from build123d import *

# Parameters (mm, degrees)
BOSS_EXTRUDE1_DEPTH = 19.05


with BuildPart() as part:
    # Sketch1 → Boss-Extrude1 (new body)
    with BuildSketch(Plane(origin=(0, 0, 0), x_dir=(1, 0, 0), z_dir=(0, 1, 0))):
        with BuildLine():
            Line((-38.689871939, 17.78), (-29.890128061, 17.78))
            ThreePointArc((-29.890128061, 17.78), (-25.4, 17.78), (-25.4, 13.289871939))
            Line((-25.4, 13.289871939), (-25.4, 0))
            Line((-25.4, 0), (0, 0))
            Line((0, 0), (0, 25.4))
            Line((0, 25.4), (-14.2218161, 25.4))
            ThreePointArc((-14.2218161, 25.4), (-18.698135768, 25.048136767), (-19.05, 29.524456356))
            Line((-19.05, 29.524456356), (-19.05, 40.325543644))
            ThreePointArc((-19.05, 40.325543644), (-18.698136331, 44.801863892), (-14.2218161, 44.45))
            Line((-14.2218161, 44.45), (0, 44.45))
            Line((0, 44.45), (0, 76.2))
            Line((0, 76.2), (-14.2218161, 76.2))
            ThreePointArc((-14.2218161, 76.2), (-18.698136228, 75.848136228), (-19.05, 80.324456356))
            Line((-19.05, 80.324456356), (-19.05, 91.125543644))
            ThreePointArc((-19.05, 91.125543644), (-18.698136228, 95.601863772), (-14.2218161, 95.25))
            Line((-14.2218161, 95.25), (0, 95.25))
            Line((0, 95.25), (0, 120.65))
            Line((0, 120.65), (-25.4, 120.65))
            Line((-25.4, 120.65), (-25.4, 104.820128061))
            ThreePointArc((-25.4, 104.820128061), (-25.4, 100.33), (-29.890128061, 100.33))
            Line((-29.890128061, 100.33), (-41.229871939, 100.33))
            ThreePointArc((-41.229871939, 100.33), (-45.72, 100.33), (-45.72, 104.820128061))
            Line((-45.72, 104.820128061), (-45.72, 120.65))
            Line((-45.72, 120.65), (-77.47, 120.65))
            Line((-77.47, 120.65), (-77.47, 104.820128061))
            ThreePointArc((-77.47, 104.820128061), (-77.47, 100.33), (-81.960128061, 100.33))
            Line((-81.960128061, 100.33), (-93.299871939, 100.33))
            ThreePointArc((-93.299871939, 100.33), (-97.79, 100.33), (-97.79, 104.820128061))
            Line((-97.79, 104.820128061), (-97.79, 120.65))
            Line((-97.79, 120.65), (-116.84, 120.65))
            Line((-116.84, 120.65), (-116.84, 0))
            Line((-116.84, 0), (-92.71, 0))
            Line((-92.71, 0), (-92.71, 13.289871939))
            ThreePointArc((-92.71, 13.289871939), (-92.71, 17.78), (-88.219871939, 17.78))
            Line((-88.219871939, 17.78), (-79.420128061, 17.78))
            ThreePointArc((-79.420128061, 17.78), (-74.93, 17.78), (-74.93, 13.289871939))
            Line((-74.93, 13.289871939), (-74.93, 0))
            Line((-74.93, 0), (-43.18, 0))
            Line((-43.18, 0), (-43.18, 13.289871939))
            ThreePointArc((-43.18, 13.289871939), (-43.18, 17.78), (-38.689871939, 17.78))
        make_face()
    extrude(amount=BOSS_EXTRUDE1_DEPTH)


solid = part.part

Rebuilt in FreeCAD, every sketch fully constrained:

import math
import FreeCAD as App
import Part
import Sketcher
Q = App.Units.Quantity

doc = App.newDocument("Part")
body = doc.addObject("PartDesign::Body", "Body")

sketch1 = doc.addObject("Sketcher::SketchObject", "Sketch")
body.addObject(sketch1)
sketch1.AttachmentSupport = (doc.XZ_Plane, [""])
sketch1.MapMode = "FlatFace"
sketch1.addGeometry(Part.LineSegment(App.Vector(-38.689872, -17.78, 0), App.Vector(-29.890128, -17.78, 0)), False)
sketch1.addGeometry(Part.ArcOfCircle(Part.Circle(App.Vector(-27.645064, -15.534936, 0), App.Vector(0, 0, 1), 3.175), math.radians(-135), math.radians(45)), False)
sketch1.addGeometry(Part.LineSegment(App.Vector(-25.4, -13.289872, 0), App.Vector(-25.4, 0, 0)), False)
sketch1.addGeometry(Part.LineSegment(App.Vector(-25.4, 0, 0), App.Vector(0, 0, 0)), False)
sketch1.addGeometry(Part.LineSegment(App.Vector(0, 0, 0), App.Vector(0, -25.4, 0)), False)
sketch1.addGeometry(Part.LineSegment(App.Vector(0, -25.4, 0), App.Vector(-14.221816, -25.4, 0)), False)
sketch1.addGeometry(Part.ArcOfCircle(Part.Circle(App.Vector(-16.635908, -27.462229, 0), App.Vector(0, 0, 1), 3.175), math.radians(40.505486), math.radians(220.505461)), False)
sketch1.addGeometry(Part.LineSegment(App.Vector(-19.05, -29.524456, 0), App.Vector(-19.05, -40.325544, 0)), False)
sketch1.addGeometry(Part.ArcOfCircle(Part.Circle(App.Vector(-16.635908, -42.387772, 0), App.Vector(0, 0, 1), 3.175), math.radians(139.494524), math.radians(319.494529)), False)
sketch1.addGeometry(Part.LineSegment(App.Vector(-14.221816, -44.45, 0), App.Vector(0, -44.45, 0)), False)
sketch1.addGeometry(Part.LineSegment(App.Vector(0, -44.45, 0), App.Vector(0, -76.2, 0)), False)
sketch1.addGeometry(Part.LineSegment(App.Vector(0, -76.2, 0), App.Vector(-14.221816, -76.2, 0)), False)
sketch1.addGeometry(Part.ArcOfCircle(Part.Circle(App.Vector(-16.635908, -78.262228, 0), App.Vector(0, 0, 1), 3.175), math.radians(40.505473), math.radians(220.505473)), False)
sketch1.addGeometry(Part.LineSegment(App.Vector(-19.05, -80.324456, 0), App.Vector(-19.05, -91.125544, 0)), False)
sketch1.addGeometry(Part.ArcOfCircle(Part.Circle(App.Vector(-16.635908, -93.187772, 0), App.Vector(0, 0, 1), 3.175), math.radians(139.494527), math.radians(319.494527)), False)
sketch1.addGeometry(Part.LineSegment(App.Vector(-14.221816, -95.25, 0), App.Vector(0, -95.25, 0)), False)
sketch1.addGeometry(Part.LineSegment(App.Vector(0, -95.25, 0), App.Vector(0, -120.65, 0)), False)
sketch1.addGeometry(Part.LineSegment(App.Vector(0, -120.65, 0), App.Vector(-25.4, -120.65, 0)), False)
sketch1.addGeometry(Part.LineSegment(App.Vector(-25.4, -120.65, 0), App.Vector(-25.4, -104.820128, 0)), False)
sketch1.addGeometry(Part.ArcOfCircle(Part.Circle(App.Vector(-27.645064, -102.575064, 0), App.Vector(0, 0, 1), 3.175), math.radians(-45), math.radians(135)), False)
sketch1.addGeometry(Part.LineSegment(App.Vector(-29.890128, -100.33, 0), App.Vector(-41.229872, -100.33, 0)), False)
sketch1.addGeometry(Part.ArcOfCircle(Part.Circle(App.Vector(-43.474936, -102.575064, 0), App.Vector(0, 0, 1), 3.175), math.radians(45), math.radians(225)), False)
sketch1.addGeometry(Part.LineSegment(App.Vector(-45.72, -104.820128, 0), App.Vector(-45.72, -120.65, 0)), False)
sketch1.addGeometry(Part.LineSegment(App.Vector(-45.72, -120.65, 0), App.Vector(-77.47, -120.65, 0)), False)
sketch1.addGeometry(Part.LineSegment(App.Vector(-77.47, -120.65, 0), App.Vector(-77.47, -104.820128, 0)), False)
sketch1.addGeometry(Part.ArcOfCircle(Part.Circle(App.Vector(-79.715064, -102.575064, 0), App.Vector(0, 0, 1), 3.175), math.radians(-45), math.radians(135)), False)
sketch1.addGeometry(Part.LineSegment(App.Vector(-81.960128, -100.33, 0), App.Vector(-93.299872, -100.33, 0)), False)
sketch1.addGeometry(Part.ArcOfCircle(Part.Circle(App.Vector(-95.544936, -102.575064, 0), App.Vector(0, 0, 1), 3.175), math.radians(45), math.radians(225)), False)
sketch1.addGeometry(Part.LineSegment(App.Vector(-97.79, -104.820128, 0), App.Vector(-97.79, -120.65, 0)), False)
sketch1.addGeometry(Part.LineSegment(App.Vector(-97.79, -120.65, 0), App.Vector(-116.84, -120.65, 0)), False)
sketch1.addGeometry(Part.LineSegment(App.Vector(-116.84, -120.65, 0), App.Vector(-116.84, 0, 0)), False)
sketch1.addGeometry(Part.LineSegment(App.Vector(-116.84, 0, 0), App.Vector(-92.71, 0, 0)), False)
sketch1.addGeometry(Part.LineSegment(App.Vector(-92.71, 0, 0), App.Vector(-92.71, -13.289872, 0)), False)
sketch1.addGeometry(Part.ArcOfCircle(Part.Circle(App.Vector(-90.464936, -15.534936, 0), App.Vector(0, 0, 1), 3.175), math.radians(135), math.radians(315)), False)
sketch1.addGeometry(Part.LineSegment(App.Vector(-88.219872, -17.78, 0), App.Vector(-79.420128, -17.78, 0)), False)
sketch1.addGeometry(Part.ArcOfCircle(Part.Circle(App.Vector(-77.175064, -15.534936, 0), App.Vector(0, 0, 1), 3.175), math.radians(-135), math.radians(45)), False)
sketch1.addGeometry(Part.LineSegment(App.Vector(-74.93, -13.289872, 0), App.Vector(-74.93, 0, 0)), False)
sketch1.addGeometry(Part.LineSegment(App.Vector(-74.93, 0, 0), App.Vector(-43.18, 0, 0)), False)
sketch1.addGeometry(Part.LineSegment(App.Vector(-43.18, 0, 0), App.Vector(-43.18, -13.289872, 0)), False)
sketch1.addGeometry(Part.ArcOfCircle(Part.Circle(App.Vector(-40.934936, -15.534936, 0), App.Vector(0, 0, 1), 3.175), math.radians(135), math.radians(315)), False)
sketch1.addConstraint(Sketcher.Constraint("Coincident", 0, 2, 1, 1))
sketch1.addConstraint(Sketcher.Constraint("Coincident", 1, 2, 2, 1))
sketch1.addConstraint(Sketcher.Constraint("Coincident", 2, 2, 3, 1))
sketch1.addConstraint(Sketcher.Constraint("Coincident", 3, 2, 4, 1))
sketch1.addConstraint(Sketcher.Constraint("Coincident", 4, 2, 5, 1))
sketch1.addConstraint(Sketcher.Constraint("Coincident", 5, 2, 6, 1))
sketch1.addConstraint(Sketcher.Constraint("Coincident", 6, 2, 7, 1))
sketch1.addConstraint(Sketcher.Constraint("Coincident", 7, 2, 8, 1))
sketch1.addConstraint(Sketcher.Constraint("Coincident", 8, 2, 9, 1))
sketch1.addConstraint(Sketcher.Constraint("Coincident", 9, 2, 10, 1))
sketch1.addConstraint(Sketcher.Constraint("Coincident", 10, 2, 11, 1))
sketch1.addConstraint(Sketcher.Constraint("Coincident", 11, 2, 12, 1))
sketch1.addConstraint(Sketcher.Constraint("Coincident", 12, 2, 13, 1))
sketch1.addConstraint(Sketcher.Constraint("Coincident", 13, 2, 14, 1))
sketch1.addConstraint(Sketcher.Constraint("Coincident", 14, 2, 15, 1))
sketch1.addConstraint(Sketcher.Constraint("Coincident", 15, 2, 16, 1))
sketch1.addConstraint(Sketcher.Constraint("Coincident", 16, 2, 17, 1))
sketch1.addConstraint(Sketcher.Constraint("Coincident", 17, 2, 18, 1))
sketch1.addConstraint(Sketcher.Constraint("Coincident", 18, 2, 19, 1))
sketch1.addConstraint(Sketcher.Constraint("Coincident", 19, 2, 20, 1))
sketch1.addConstraint(Sketcher.Constraint("Coincident", 20, 2, 21, 1))
sketch1.addConstraint(Sketcher.Constraint("Coincident", 21, 2, 22, 1))
sketch1.addConstraint(Sketcher.Constraint("Coincident", 22, 2, 23, 1))
sketch1.addConstraint(Sketcher.Constraint("Coincident", 23, 2, 24, 1))
sketch1.addConstraint(Sketcher.Constraint("Coincident", 24, 2, 25, 1))
sketch1.addConstraint(Sketcher.Constraint("Coincident", 25, 2, 26, 1))
sketch1.addConstraint(Sketcher.Constraint("Coincident", 26, 2, 27, 1))
sketch1.addConstraint(Sketcher.Constraint("Coincident", 27, 2, 28, 1))
sketch1.addConstraint(Sketcher.Constraint("Coincident", 28, 2, 29, 1))
sketch1.addConstraint(Sketcher.Constraint("Coincident", 29, 2, 30, 1))
sketch1.addConstraint(Sketcher.Constraint("Coincident", 30, 2, 31, 1))
sketch1.addConstraint(Sketcher.Constraint("Coincident", 31, 2, 32, 1))
sketch1.addConstraint(Sketcher.Constraint("Coincident", 32, 2, 33, 1))
sketch1.addConstraint(Sketcher.Constraint("Coincident", 33, 2, 34, 1))
sketch1.addConstraint(Sketcher.Constraint("Coincident", 34, 2, 35, 1))
sketch1.addConstraint(Sketcher.Constraint("Coincident", 35, 2, 36, 1))
sketch1.addConstraint(Sketcher.Constraint("Coincident", 36, 2, 37, 1))
sketch1.addConstraint(Sketcher.Constraint("Coincident", 37, 2, 38, 1))
sketch1.addConstraint(Sketcher.Constraint("Coincident", 38, 2, 39, 1))
sketch1.addConstraint(Sketcher.Constraint("Coincident", 39, 2, 0, 1))
sketch1.addConstraint(Sketcher.Constraint("Horizontal", 0))
sketch1.addConstraint(Sketcher.Constraint("Vertical", 2))
sketch1.addConstraint(Sketcher.Constraint("Horizontal", 3))
sketch1.addConstraint(Sketcher.Constraint("Vertical", 4))
sketch1.addConstraint(Sketcher.Constraint("Horizontal", 5))
sketch1.addConstraint(Sketcher.Constraint("Vertical", 7))
sketch1.addConstraint(Sketcher.Constraint("Horizontal", 9))
sketch1.addConstraint(Sketcher.Constraint("Vertical", 10))
sketch1.addConstraint(Sketcher.Constraint("Horizontal", 11))
sketch1.addConstraint(Sketcher.Constraint("Vertical", 13))
sketch1.addConstraint(Sketcher.Constraint("Horizontal", 15))
sketch1.addConstraint(Sketcher.Constraint("Vertical", 16))
sketch1.addConstraint(Sketcher.Constraint("Horizontal", 17))
sketch1.addConstraint(Sketcher.Constraint("Vertical", 18))
sketch1.addConstraint(Sketcher.Constraint("Horizontal", 20))
sketch1.addConstraint(Sketcher.Constraint("Vertical", 22))
sketch1.addConstraint(Sketcher.Constraint("Horizontal", 23))
sketch1.addConstraint(Sketcher.Constraint("Vertical", 24))
sketch1.addConstraint(Sketcher.Constraint("Horizontal", 26))
sketch1.addConstraint(Sketcher.Constraint("Vertical", 28))
sketch1.addConstraint(Sketcher.Constraint("Horizontal", 29))
sketch1.addConstraint(Sketcher.Constraint("Vertical", 30))
sketch1.addConstraint(Sketcher.Constraint("Horizontal", 31))
sketch1.addConstraint(Sketcher.Constraint("Vertical", 32))
sketch1.addConstraint(Sketcher.Constraint("Horizontal", 34))
sketch1.addConstraint(Sketcher.Constraint("Vertical", 36))
sketch1.addConstraint(Sketcher.Constraint("Horizontal", 37))
sketch1.addConstraint(Sketcher.Constraint("Vertical", 38))
sketch1.addConstraint(Sketcher.Constraint("Coincident", 3, 2, -1, 1))
sketch1.addConstraint(Sketcher.Constraint("Equal", 1, 6))
sketch1.addConstraint(Sketcher.Constraint("Equal", 6, 8))
sketch1.addConstraint(Sketcher.Constraint("Equal", 8, 12))
sketch1.addConstraint(Sketcher.Constraint("Equal", 12, 14))
sketch1.addConstraint(Sketcher.Constraint("Equal", 14, 19))
sketch1.addConstraint(Sketcher.Constraint("Equal", 19, 21))
sketch1.addConstraint(Sketcher.Constraint("Equal", 21, 25))
sketch1.addConstraint(Sketcher.Constraint("Equal", 25, 27))
sketch1.addConstraint(Sketcher.Constraint("Equal", 27, 33))
sketch1.addConstraint(Sketcher.Constraint("Equal", 33, 35))
sketch1.addConstraint(Sketcher.Constraint("Equal", 35, 39))
sketch1.addConstraint(Sketcher.Constraint("PointOnObject", 9, 2, -2))
sketch1.addConstraint(Sketcher.Constraint("PointOnObject", 15, 2, -2))
sketch1.addConstraint(Sketcher.Constraint("PointOnObject", 30, 2, -1))
sketch1.addConstraint(Sketcher.Constraint("PointOnObject", 36, 2, -1))
sketch1.addConstraint(Sketcher.Constraint("Horizontal", 19, 3, 21, 3))
sketch1.addConstraint(Sketcher.Constraint("Horizontal", 21, 3, 25, 3))
sketch1.addConstraint(Sketcher.Constraint("Horizontal", 25, 3, 27, 3))
sketch1.addConstraint(Sketcher.Constraint("Horizontal", 1, 3, 33, 3))
sketch1.addConstraint(Sketcher.Constraint("Horizontal", 33, 3, 35, 3))
sketch1.addConstraint(Sketcher.Constraint("Horizontal", 35, 3, 39, 3))
sketch1.addConstraint(Sketcher.Constraint("Horizontal", 18, 2, 21, 2))
sketch1.addConstraint(Sketcher.Constraint("Horizontal", 17, 2, 22, 2))
sketch1.addConstraint(Sketcher.Constraint("Horizontal", 21, 2, 24, 2))
sketch1.addConstraint(Sketcher.Constraint("Horizontal", 20, 2, 25, 2))
sketch1.addConstraint(Sketcher.Constraint("Horizontal", 24, 2, 27, 2))
sketch1.addConstraint(Sketcher.Constraint("Horizontal", 23, 2, 28, 2))
sketch1.addConstraint(Sketcher.Constraint("Horizontal", 1, 2, 32, 2))
sketch1.addConstraint(Sketcher.Constraint("Horizontal", 0, 2, 33, 2))
sketch1.addConstraint(Sketcher.Constraint("Horizontal", 32, 2, 35, 2))
sketch1.addConstraint(Sketcher.Constraint("Horizontal", 35, 2, 38, 2))
sketch1.addConstraint(Sketcher.Constraint("Vertical", 6, 3, 8, 3))
sketch1.addConstraint(Sketcher.Constraint("Vertical", 8, 3, 12, 3))
sketch1.addConstraint(Sketcher.Constraint("Vertical", 12, 3, 14, 3))
sketch1.addConstraint(Sketcher.Constraint("Vertical", 1, 3, 19, 3))
sketch1.addConstraint(Sketcher.Constraint("Vertical", 5, 2, 8, 2))
sketch1.addConstraint(Sketcher.Constraint("Vertical", 8, 2, 11, 2))
sketch1.addConstraint(Sketcher.Constraint("Vertical", 7, 2, 12, 2))
sketch1.addConstraint(Sketcher.Constraint("Vertical", 11, 2, 14, 2))
sketch1.addConstraint(Sketcher.Constraint("Vertical", 2, 2, 17, 2))
sketch1.addConstraint(Sketcher.Constraint("Vertical", 0, 2, 19, 2))
sketch1.addConstraint(Sketcher.Constraint("Equal", 20, 26))
sketch1.addConstraint(Sketcher.Constraint("Equal", 0, 34))
sketch1.addConstraint(Sketcher.Constraint("Equal", 23, 37))
sketch1.addConstraint(Sketcher.Constraint("Equal", 17, 4))
sketch1.addConstraint(Sketcher.Constraint("Equal", 37, 10))
sketch1.addConstraint(Sketcher.Constraint("Equal", 7, 13))
sketch1.addConstraint(Sketcher.Constraint("Equal", 4, 16))
sketch1.addConstraint(Sketcher.Constraint("DistanceX", 3, 1, 3, 2, Q("1 in")))
sketch1.addConstraint(Sketcher.Constraint("DistanceY", 10, 2, -1, 1, Q("3 in")))
sketch1.addConstraint(Sketcher.Constraint("Radius", 1, Q("0.125 in")))
sketch1.addConstraint(Sketcher.Constraint("DistanceX", 23, 2, 23, 1, Q("1.25 in")))
sketch1.addConstraint(Sketcher.Constraint("DistanceX", 29, 2, 29, 1, Q("0.75 in")))
sketch1.addConstraint(Sketcher.Constraint("DistanceX", 31, 1, 31, 2, Q("0.95 in")))
sketch1.addConstraint(Sketcher.Constraint("DistanceY", 0, 2, -1, 1, Q("0.7 in")))
sketch1.addConstraint(Sketcher.Constraint("DistanceX", 21, 2, -1, 1, Q("1.8 in")))
sketch1.addConstraint(Sketcher.Constraint("DistanceY", 22, 2, 20, 2, Q("0.8 in")))
sketch1.addConstraint(Sketcher.Constraint("DistanceX", 6, 2, -1, 1, Q("0.75 in")))
sketch1.addConstraint(Sketcher.Constraint("DistanceY", 2, 1, 2, 2, Q("13.289872 mm")))
sketch1.addConstraint(Sketcher.Constraint("DistanceY", 8, 3, 1, 2, Q("29.0979 mm")))
sketch1.addConstraint(Sketcher.Constraint("DistanceX", 5, 2, 5, 1, Q("14.221816 mm")))
sketch1.addConstraint(Sketcher.Constraint("DistanceY", 19, 3, 1, 3, Q("87.040128 mm")))
pad1 = doc.addObject("PartDesign::Pad", "Pad")
body.addObject(pad1)
pad1.Profile = sketch1
pad1.Length = Q("0.75 in")
pad1.Reversed = True

doc.recompute()
